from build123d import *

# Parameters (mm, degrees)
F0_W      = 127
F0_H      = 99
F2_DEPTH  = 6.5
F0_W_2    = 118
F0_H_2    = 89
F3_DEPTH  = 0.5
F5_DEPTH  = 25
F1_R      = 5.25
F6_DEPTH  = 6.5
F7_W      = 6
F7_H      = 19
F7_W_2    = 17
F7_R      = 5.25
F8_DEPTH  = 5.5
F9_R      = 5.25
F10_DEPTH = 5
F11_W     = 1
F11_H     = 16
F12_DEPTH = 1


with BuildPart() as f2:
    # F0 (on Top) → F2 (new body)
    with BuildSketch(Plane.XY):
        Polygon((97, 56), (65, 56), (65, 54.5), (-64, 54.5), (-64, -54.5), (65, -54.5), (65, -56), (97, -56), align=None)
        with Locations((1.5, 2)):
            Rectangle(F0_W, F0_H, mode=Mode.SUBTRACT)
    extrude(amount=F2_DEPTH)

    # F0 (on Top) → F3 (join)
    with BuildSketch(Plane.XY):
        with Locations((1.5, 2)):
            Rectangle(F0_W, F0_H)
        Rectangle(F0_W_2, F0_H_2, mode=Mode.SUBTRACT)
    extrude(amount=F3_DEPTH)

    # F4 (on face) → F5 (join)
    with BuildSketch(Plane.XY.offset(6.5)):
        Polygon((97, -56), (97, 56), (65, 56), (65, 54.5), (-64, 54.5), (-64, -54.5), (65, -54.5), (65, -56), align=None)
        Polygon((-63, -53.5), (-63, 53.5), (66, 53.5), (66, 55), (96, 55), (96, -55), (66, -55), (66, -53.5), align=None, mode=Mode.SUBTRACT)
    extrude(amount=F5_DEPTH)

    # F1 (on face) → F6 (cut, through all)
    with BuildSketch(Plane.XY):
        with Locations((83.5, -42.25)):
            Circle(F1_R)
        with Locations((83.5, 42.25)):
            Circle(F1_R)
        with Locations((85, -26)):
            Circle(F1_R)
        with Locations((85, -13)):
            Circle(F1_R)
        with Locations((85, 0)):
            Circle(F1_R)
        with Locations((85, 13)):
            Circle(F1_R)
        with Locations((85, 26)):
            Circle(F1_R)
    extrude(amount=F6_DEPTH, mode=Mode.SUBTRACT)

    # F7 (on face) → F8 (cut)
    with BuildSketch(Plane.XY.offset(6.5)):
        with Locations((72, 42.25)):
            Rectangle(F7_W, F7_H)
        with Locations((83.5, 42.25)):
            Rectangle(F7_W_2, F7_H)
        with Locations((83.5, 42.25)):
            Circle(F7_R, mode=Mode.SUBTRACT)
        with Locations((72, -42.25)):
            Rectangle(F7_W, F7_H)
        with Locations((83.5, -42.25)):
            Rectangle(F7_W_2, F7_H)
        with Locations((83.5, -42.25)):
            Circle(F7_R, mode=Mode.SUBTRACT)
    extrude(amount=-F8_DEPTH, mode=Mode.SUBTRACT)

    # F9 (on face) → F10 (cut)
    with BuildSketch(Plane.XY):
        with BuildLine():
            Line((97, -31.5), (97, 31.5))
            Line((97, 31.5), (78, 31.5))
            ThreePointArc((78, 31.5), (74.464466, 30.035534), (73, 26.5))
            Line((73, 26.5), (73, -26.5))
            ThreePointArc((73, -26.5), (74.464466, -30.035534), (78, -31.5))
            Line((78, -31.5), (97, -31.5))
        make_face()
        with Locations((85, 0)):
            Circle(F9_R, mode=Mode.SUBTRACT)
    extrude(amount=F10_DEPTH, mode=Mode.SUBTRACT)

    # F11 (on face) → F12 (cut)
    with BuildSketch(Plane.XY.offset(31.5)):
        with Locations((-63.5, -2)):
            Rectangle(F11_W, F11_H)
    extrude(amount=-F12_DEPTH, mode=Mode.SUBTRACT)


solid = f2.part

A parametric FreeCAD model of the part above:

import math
import FreeCAD as App
import Part
import Sketcher

doc = App.newDocument("Part")
body = doc.addObject("PartDesign::Body", "Body")

# Sketch on XY plane
sketch1 = doc.addObject("Sketcher::SketchObject", "Sketch")
body.addObject(sketch1)
sketch1.AttachmentSupport = (doc.XY_Plane, [""])
sketch1.MapMode = "FlatFace"
sketch1.addGeometry([
    Part.LineSegment(App.Vector(97, 56, 0), App.Vector(65, 56, 0)),  # 0
    Part.LineSegment(App.Vector(65, 56, 0), App.Vector(65, 54.5, 0)),  # 1
    Part.LineSegment(App.Vector(65, 54.5, 0), App.Vector(-64, 54.5, 0)),  # 2
    Part.LineSegment(App.Vector(-64, 54.5, 0), App.Vector(-64, -54.5, 0)),  # 3
    Part.LineSegment(App.Vector(-64, -54.5, 0), App.Vector(65, -54.5, 0)),  # 4
    Part.LineSegment(App.Vector(65, -54.5, 0), App.Vector(65, -56, 0)),  # 5
    Part.LineSegment(App.Vector(65, -56, 0), App.Vector(97, -56, 0)),  # 6
    Part.LineSegment(App.Vector(97, -56, 0), App.Vector(97, 56, 0)),  # 7
    Part.LineSegment(App.Vector(65, -47.5, 0), App.Vector(-62, -47.5, 0)),  # 8
    Part.LineSegment(App.Vector(-62, -47.5, 0), App.Vector(-62, 51.5, 0)),  # 9
    Part.LineSegment(App.Vector(-62, 51.5, 0), App.Vector(65, 51.5, 0)),  # 10
    Part.LineSegment(App.Vector(65, 51.5, 0), App.Vector(65, -47.5, 0)),  # 11
], False)
sketch1.addConstraint([
    Sketcher.Constraint("Coincident", 0, 2, 1, 1),
    Sketcher.Constraint("Coincident", 1, 2, 2, 1),
    Sketcher.Constraint("Coincident", 2, 2, 3, 1),
    Sketcher.Constraint("Coincident", 3, 2, 4, 1),
    Sketcher.Constraint("Coincident", 4, 2, 5, 1),
    Sketcher.Constraint("Coincident", 5, 2, 6, 1),
    Sketcher.Constraint("Coincident", 6, 2, 7, 1),
    Sketcher.Constraint("Coincident", 7, 2, 0, 1),
    Sketcher.Constraint("Coincident", 8, 2, 9, 1),
    Sketcher.Constraint("Coincident", 9, 2, 10, 1),
    Sketcher.Constraint("Coincident", 10, 2, 11, 1),
    Sketcher.Constraint("Coincident", 11, 2, 8, 1),
    Sketcher.Constraint("Horizontal", 0),
    Sketcher.Constraint("Vertical", 1),
    Sketcher.Constraint("Horizontal", 2),
    Sketcher.Constraint("Vertical", 3),
    Sketcher.Constraint("Horizontal", 4),
    Sketcher.Constraint("Vertical", 5),
    Sketcher.Constraint("Horizontal", 6),
    Sketcher.Constraint("Vertical", 7),
    Sketcher.Constraint("Horizontal", 8),
    Sketcher.Constraint("Vertical", 9),
    Sketcher.Constraint("Horizontal", 10),
    Sketcher.Constraint("Vertical", 11),
    Sketcher.Constraint("Symmetric", 1, 2, 4, 2, -1),
    Sketcher.Constraint("Vertical", 5, 2, 10, 2),
    Sketcher.Constraint("Equal", 1, 5),
    Sketcher.Constraint("DistanceX", 0, 2, 0, 1, 32.0),
    Sketcher.Constraint("DistanceX", 2, 2, 2, 1, 129.0),
    Sketcher.Constraint("DistanceX", 8, 2, 8, 1, 127.0),
    Sketcher.Constraint("DistanceY", 3, 2, 3, 1, 109.0),
    Sketcher.Constraint("DistanceY", 7, 1, 7, 2, 112.0),
    Sketcher.Constraint("DistanceY", 9, 1, 9, 2, 99.0),
    Sketcher.Constraint("DistanceX", -1, 1, 0, 2, 65.0),
    Sketcher.Constraint("DistanceY", 3, 2, 8, 2, 7.0),
])
pad1 = doc.addObject("PartDesign::Pad", "Pad")
body.addObject(pad1)
pad1.Profile = sketch1
pad1.Length = 6.5

# Sketch on XY plane
sketch2 = doc.addObject("Sketcher::SketchObject", "Sketch001")
body.addObject(sketch2)
sketch2.AttachmentSupport = (doc.XY_Plane, [""])
sketch2.MapMode = "FlatFace"
sketch2.addGeometry([
    Part.LineSegment(App.Vector(-62, 52, 0), App.Vector(-62, -48, 0)),  # 0
    Part.LineSegment(App.Vector(-62, -48, 0), App.Vector(65, -48, 0)),  # 1
    Part.LineSegment(App.Vector(65, -48, 0), App.Vector(65, 52, 0)),  # 2
    Part.LineSegment(App.Vector(65, 52, 0), App.Vector(-62, 52, 0)),  # 3
    Part.LineSegment(App.Vector(59, -44, 0), App.Vector(-59, -44, 0)),  # 4
    Part.LineSegment(App.Vector(-59, -44, 0), App.Vector(-59, 44, 0)),  # 5
    Part.LineSegment(App.Vector(-59, 44, 0), App.Vector(59, 44, 0)),  # 6
    Part.LineSegment(App.Vector(59, 44, 0), App.Vector(59, -44, 0)),  # 7
], False)
sketch2.addConstraint([
    Sketcher.Constraint("Coincident", 0, 2, 1, 1),
    Sketcher.Constraint("Coincident", 1, 2, 2, 1),
    Sketcher.Constraint("Coincident", 2, 2, 3, 1),
    Sketcher.Constraint("Coincident", 3, 2, 0, 1),
    Sketcher.Constraint("Coincident", 4, 2, 5, 1),
    Sketcher.Constraint("Coincident", 5, 2, 6, 1),
    Sketcher.Constraint("Coincident", 6, 2, 7, 1),
    Sketcher.Constraint("Coincident", 7, 2, 4, 1),
    Sketcher.Constraint("Vertical", 0),
    Sketcher.Constraint("Horizontal", 1),
    Sketcher.Constraint("Vertical", 2),
    Sketcher.Constraint("Horizontal", 3),
    Sketcher.Constraint("Horizontal", 4),
    Sketcher.Constraint("Vertical", 5),
    Sketcher.Constraint("Horizontal", 6),
    Sketcher.Constraint("Vertical", 7),
    Sketcher.Constraint("Symmetric", 4, 2, 6, 2, -1, 1),
    Sketcher.Constraint("DistanceX", 1, 1, 1, 2, 127.0),
    Sketcher.Constraint("DistanceX", 4, 2, 4, 1, 118.0),
    Sketcher.Constraint("DistanceY", 0, 2, 0, 1, 99.0),
    Sketcher.Constraint("DistanceY", 5, 1, 5, 2, 89.0),
    Sketcher.Constraint("DistanceX", 0, 2, -1, 1, 62.0),
    Sketcher.Constraint("DistanceY", 0, 2, 4, 2, 3.0),
])
pad2 = doc.addObject("PartDesign::Pad", "Pad001")
body.addObject(pad2)
pad2.Profile = sketch2
pad2.Length = 0.5

# Sketch on XY plane
sketch3 = doc.addObject("Sketcher::SketchObject", "Sketch002")
body.addObject(sketch3)
sketch3.AttachmentSupport = (doc.XY_Plane, [""])
sketch3.MapMode = "FlatFace"
sketch3.AttachmentOffset = App.Placement(App.Vector(0, 0, 6.5), App.Rotation())
sketch3.addGeometry([
    Part.LineSegment(App.Vector(97, -56, 0), App.Vector(97, 56, 0)),  # 0
    Part.LineSegment(App.Vector(97, 56, 0), App.Vector(65, 56, 0)),  # 1
    Part.LineSegment(App.Vector(65, 56, 0), App.Vector(65, 54.5, 0)),  # 2
    Part.LineSegment(App.Vector(65, 54.5, 0), App.Vector(-64, 54.5, 0)),  # 3
    Part.LineSegment(App.Vector(-64, 54.5, 0), App.Vector(-64, -54.5, 0)),  # 4
    Part.LineSegment(App.Vector(-64, -54.5, 0), App.Vector(65, -54.5, 0)),  # 5
    Part.LineSegment(App.Vector(65, -54.5, 0), App.Vector(65, -56, 0)),  # 6
    Part.LineSegment(App.Vector(65, -56, 0), App.Vector(97, -56, 0)),  # 7
    Part.LineSegment(App.Vector(66, -53.5, 0), App.Vector(-63, -53.5, 0)),  # 8
    Part.LineSegment(App.Vector(-63, -53.5, 0), App.Vector(-63, 53.5, 0)),  # 9
    Part.LineSegment(App.Vector(-63, 53.5, 0), App.Vector(66, 53.5, 0)),  # 10
    Part.LineSegment(App.Vector(66, 53.5, 0), App.Vector(66, 55, 0)),  # 11
    Part.LineSegment(App.Vector(66, 55, 0), App.Vector(96, 55, 0)),  # 12
    Part.LineSegment(App.Vector(96, 55, 0), App.Vector(96, -55, 0)),  # 13
    Part.LineSegment(App.Vector(96, -55, 0), App.Vector(66, -55, 0)),  # 14
    Part.LineSegment(App.Vector(66, -55, 0), App.Vector(66, -53.5, 0)),  # 15
], False)
sketch3.addConstraint([
    Sketcher.Constraint("Coincident", 0, 2, 1, 1),
    Sketcher.Constraint("Coincident", 1, 2, 2, 1),
    Sketcher.Constraint("Coincident", 2, 2, 3, 1),
    Sketcher.Constraint("Coincident", 3, 2, 4, 1),
    Sketcher.Constraint("Coincident", 4, 2, 5, 1),
    Sketcher.Constraint("Coincident", 5, 2, 6, 1),
    Sketcher.Constraint("Coincident", 6, 2, 7, 1),
    Sketcher.Constraint("Coincident", 7, 2, 0, 1),
    Sketcher.Constraint("Coincident", 8, 2, 9, 1),
    Sketcher.Constraint("Coincident", 9, 2, 10, 1),
    Sketcher.Constraint("Coincident", 10, 2, 11, 1),
    Sketcher.Constraint("Coincident", 11, 2, 12, 1),
    Sketcher.Constraint("Coincident", 12, 2, 13, 1),
    Sketcher.Constraint("Coincident", 13, 2, 14, 1),
    Sketcher.Constraint("Coincident", 14, 2, 15, 1),
    Sketcher.Constraint("Coincident", 15, 2, 8, 1),
    Sketcher.Constraint("Vertical", 0),
    Sketcher.Constraint("Horizontal", 1),
    Sketcher.Constraint("Vertical", 2),
    Sketcher.Constraint("Horizontal", 3),
    Sketcher.Constraint("Vertical", 4),
    Sketcher.Constraint("Horizontal", 5),
    Sketcher.Constraint("Vertical", 6),
    Sketcher.Constraint("Horizontal", 7),
    Sketcher.Constraint("Horizontal", 8),
    Sketcher.Constraint("Vertical", 9),
    Sketcher.Constraint("Horizontal", 10),
    Sketcher.Constraint("Vertical", 11),
    Sketcher.Constraint("Horizontal", 12),
    Sketcher.Constraint("Vertical", 13),
    Sketcher.Constraint("Horizontal", 14),
    Sketcher.Constraint("Vertical", 15),
    Sketcher.Constraint("Symmetric", 2, 2, 5, 2, -1),
    Sketcher.Constraint("Symmetric", 11, 2, 14, 2, -1),
    Sketcher.Constraint("Equal", 5, 8),
    Sketcher.Constraint("Equal", 2, 6),
    Sketcher.Constraint("Equal", 6, 11),
    Sketcher.Constraint("Equal", 11, 15),
    Sketcher.Constraint("DistanceX", 1, 2, 1, 1, 32.0),
    Sketcher.Constraint("DistanceX", 3, 2, 3, 1, 129.0),
    Sketcher.Constraint("DistanceX", 12, 1, 12, 2, 30.0),
    Sketcher.Constraint("DistanceY", 0, 1, 0, 2, 112.0),
    Sketcher.Constraint("DistanceY", 4, 2, 4, 1, 109.0),
    Sketcher.Constraint("DistanceY", 9, 1, 9, 2, 107.0),
    Sketcher.Constraint("DistanceX", -1, 1, 0, 2, 97.0),
    Sketcher.Constraint("DistanceX", 8, 2, -1, 1, 63.0),
])
pad3 = doc.addObject("PartDesign::Pad", "Pad002")
body.addObject(pad3)
pad3.Profile = sketch3
pad3.Length = 25

# Sketch on XY plane
sketch4 = doc.addObject("Sketcher::SketchObject", "Sketch003")
body.addObject(sketch4)
sketch4.AttachmentSupport = (doc.XY_Plane, [""])
sketch4.MapMode = "FlatFace"
sketch4.addGeometry([
    Part.Circle(App.Vector(84, -42, 0), App.Vector(0, 0, 1), 5),  # 0
    Part.Circle(App.Vector(84, 42, 0), App.Vector(0, 0, 1), 5),  # 1
    Part.Circle(App.Vector(85, -26, 0), App.Vector(0, 0, 1), 5),  # 2
    Part.Circle(App.Vector(85, -13, 0), App.Vector(0, 0, 1), 5),  # 3
    Part.Circle(App.Vector(85, 0, 0), App.Vector(0, 0, 1), 5),  # 4
    Part.Circle(App.Vector(85, 13, 0), App.Vector(0, 0, 1), 5),  # 5
    Part.Circle(App.Vector(85, 26, 0), App.Vector(0, 0, 1), 5),  # 6
], False)
sketch4.addConstraint([
    Sketcher.Constraint("Equal", 0, 1),
    Sketcher.Constraint("Equal", 1, 2),
    Sketcher.Constraint("Equal", 2, 3),
    Sketcher.Constraint("Equal", 3, 4),
    Sketcher.Constraint("Equal", 4, 5),
    Sketcher.Constraint("Equal", 5, 6),
    Sketcher.Constraint("Symmetric", 0, 3, 1, 3, -1),
    Sketcher.Constraint("Symmetric", 3, 3, 5, 3, -1),
    Sketcher.Constraint("Symmetric", 2, 3, 6, 3, -1),
    Sketcher.Constraint("PointOnObject", 4, 3, -1),
    Sketcher.Constraint("Vertical", 2, 3, 3, 3),
    Sketcher.Constraint("Vertical", 3, 3, 4, 3),
    Sketcher.Constraint("Diameter", 0, 10.5),
    Sketcher.Constraint("DistanceX", -1, 1, 2, 3, 85.0),
    Sketcher.Constraint("DistanceY", 2, 3, -1, 1, 26.0),
    Sketcher.Constraint("DistanceY", 3, 3, -1, 1, 13.0),
    Sketcher.Constraint("DistanceX", -1, 1, 0, 3, 83.5),
    Sketcher.Constraint("DistanceY", 0, 3, 1, 3, 84.5),
])
pocket1 = doc.addObject("PartDesign::Pocket", "Pocket")
body.addObject(pocket1)
pocket1.Profile = sketch4
pocket1.Type = "ThroughAll"
pocket1.Reversed = True

# Sketch on XY plane
sketch5 = doc.addObject("Sketcher::SketchObject", "Sketch004")
body.addObject(sketch5)
sketch5.AttachmentSupport = (doc.XY_Plane, [""])
sketch5.MapMode = "FlatFace"
sketch5.AttachmentOffset = App.Placement(App.Vector(0, 0, 6.5), App.Rotation())
sketch5.addGeometry([
    Part.LineSegment(App.Vector(69, 52, 0), App.Vector(69, 33, 0)),  # 0
    Part.LineSegment(App.Vector(69, 33, 0), App.Vector(92, 33, 0)),  # 1
    Part.LineSegment(App.Vector(92, 33, 0), App.Vector(92, 52, 0)),  # 2
    Part.LineSegment(App.Vector(92, 52, 0), App.Vector(69, 52, 0)),  # 3
    Part.Circle(App.Vector(84, 42, 0), App.Vector(0, 0, 1), 5),  # 4
    Part.LineSegment(App.Vector(69, -33, 0), App.Vector(69, -52, 0)),  # 5
    Part.LineSegment(App.Vector(69, -52, 0), App.Vector(92, -52, 0)),  # 6
    Part.LineSegment(App.Vector(92, -52, 0), App.Vector(92, -33, 0)),  # 7
    Part.LineSegment(App.Vector(92, -33, 0), App.Vector(69, -33, 0)),  # 8
    Part.Circle(App.Vector(84, -42, 0), App.Vector(0, 0, 1), 5),  # 9
], False)
sketch5.addConstraint([
    Sketcher.Constraint("Coincident", 0, 2, 1, 1),
    Sketcher.Constraint("Coincident", 1, 2, 2, 1),
    Sketcher.Constraint("Coincident", 2, 2, 3, 1),
    Sketcher.Constraint("Coincident", 3, 2, 0, 1),
    Sketcher.Constraint("Coincident", 5, 2, 6, 1),
    Sketcher.Constraint("Coincident", 6, 2, 7, 1),
    Sketcher.Constraint("Coincident", 7, 2, 8, 1),
    Sketcher.Constraint("Coincident", 8, 2, 5, 1),
    Sketcher.Constraint("Vertical", 0),
    Sketcher.Constraint("Horizontal", 1),
    Sketcher.Constraint("Vertical", 2),
    Sketcher.Constraint("Horizontal", 3),
    Sketcher.Constraint("Vertical", 5),
    Sketcher.Constraint("Horizontal", 6),
    Sketcher.Constraint("Vertical", 7),
    Sketcher.Constraint("Horizontal", 8),
    Sketcher.Constraint("Equal", 4, 9),
    Sketcher.Constraint("Symmetric", 4, 3, 9, 3, -1),
    Sketcher.Constraint("Symmetric", 3, 2, 5, 2, -1),
    Sketcher.Constraint("Symmetric", 1, 2, 7, 2, -1),
    Sketcher.Constraint("Diameter", 4, 10.5),
    Sketcher.Constraint("DistanceX", 1, 1, 1, 2, 23.0),
    Sketcher.Constraint("DistanceY", 0, 2, 0, 1, 19.0),
    Sketcher.Constraint("DistanceX", -1, 1, 0, 2, 69.0),
    Sketcher.Constraint("DistanceY", 9, 3, 0, 2, 75.0),
    Sketcher.Constraint("DistanceX", -1, 1, 4, 3, 83.5),
    Sketcher.Constraint("DistanceY", 9, 3, 4, 3, 84.5),
])
pocket2 = doc.addObject("PartDesign::Pocket", "Pocket001")
body.addObject(pocket2)
pocket2.Profile = sketch5
pocket2.Length = 5.5

# Sketch on XY plane
sketch6 = doc.addObject("Sketcher::SketchObject", "Sketch005")
body.addObject(sketch6)
sketch6.AttachmentSupport = (doc.XY_Plane, [""])
sketch6.MapMode = "FlatFace"
sketch6.addGeometry([
    Part.LineSegment(App.Vector(97, -31.5, 0), App.Vector(97, 31.5, 0)),  # 0
    Part.LineSegment(App.Vector(97, 31.5, 0), App.Vector(78, 31.5, 0)),  # 1
    Part.ArcOfCircle(Part.Circle(App.Vector(78, 26.5, 0), App.Vector(0, 0, 1), 5), math.radians(90), math.radians(180)),  # 2
    Part.LineSegment(App.Vector(73, 26.5, 0), App.Vector(73, -26.5, 0)),  # 3
    Part.ArcOfCircle(Part.Circle(App.Vector(78, -26.5, 0), App.Vector(0, 0, 1), 5), math.radians(180), math.radians(270)),  # 4
    Part.LineSegment(App.Vector(78, -31.5, 0), App.Vector(97, -31.5, 0)),  # 5
    Part.Circle(App.Vector(85, 0, 0), App.Vector(0, 0, 1), 5.2),  # 6
], False)
sketch6.addConstraint([
    Sketcher.Constraint("Coincident", 0, 2, 1, 1),
    Sketcher.Constraint("Tangent", 1, 2, 2, 1),
    Sketcher.Constraint("Tangent", 2, 2, 3, 1),
    Sketcher.Constraint("Tangent", 3, 2, 4, 1),
    Sketcher.Constraint("Tangent", 4, 2, 5, 1),
    Sketcher.Constraint("Coincident", 5, 2, 0, 1),
    Sketcher.Constraint("Vertical", 0),
    Sketcher.Constraint("Horizontal", 1),
    Sketcher.Constraint("Vertical", 3),
    Sketcher.Constraint("Horizontal", 5),
    Sketcher.Constraint("Equal", 2, 4),
    Sketcher.Constraint("PointOnObject", 6, 3, -1),
    Sketcher.Constraint("Radius", 2, 5.0),
    Sketcher.Constraint("Diameter", 6, 10.5),
    Sketcher.Constraint("DistanceX", 1, 2, 1, 1, 19.0),
    Sketcher.Constraint("DistanceY", 0, 1, 0, 2, 63.0),
    Sketcher.Constraint("DistanceX", -1, 1, 2, 3, 78.0),
    Sketcher.Constraint("DistanceX", -1, 1, 6, 3, 85.0),
    Sketcher.Constraint("DistanceY", -1, 1, 2, 3, 26.5),
])
pocket3 = doc.addObject("PartDesign::Pocket", "Pocket002")
body.addObject(pocket3)
pocket3.Profile = sketch6
pocket3.Length = 5
pocket3.Reversed = True

# Sketch on XY plane
sketch7 = doc.addObject("Sketcher::SketchObject", "Sketch006")
body.addObject(sketch7)
sketch7.AttachmentSupport = (doc.XY_Plane, [""])
sketch7.MapMode = "FlatFace"
sketch7.AttachmentOffset = App.Placement(App.Vector(0, 0, 31.5), App.Rotation())
sketch7.addGeometry([
    Part.LineSegment(App.Vector(-64, 6, 0), App.Vector(-64, -10, 0)),
    Part.LineSegment(App.Vector(-64, -10, 0), App.Vector(-63, -10, 0)),
    Part.LineSegment(App.Vector(-63, -10, 0), App.Vector(-63, 6, 0)),
    Part.LineSegment(App.Vector(-63, 6, 0), App.Vector(-64, 6, 0)),
], False)
sketch7.addConstraint([
    Sketcher.Constraint("Coincident", 0, 2, 1, 1),
    Sketcher.Constraint("Coincident", 1, 2, 2, 1),
    Sketcher.Constraint("Coincident", 2, 2, 3, 1),
    Sketcher.Constraint("Coincident", 3, 2, 0, 1),
    Sketcher.Constraint("Vertical", 0),
    Sketcher.Constraint("Horizontal", 1),
    Sketcher.Constraint("Vertical", 2),
    Sketcher.Constraint("Horizontal", 3),
    Sketcher.Constraint("DistanceX", 1, 1, 1, 2, 1.0),
    Sketcher.Constraint("DistanceY", 0, 2, 0, 1, 16.0),
    Sketcher.Constraint("DistanceX", 0, 2, -1, 1, 64.0),
    Sketcher.Constraint("DistanceY", 0, 2, -1, 1, 10.0),
])
pocket4 = doc.addObject("PartDesign::Pocket", "Pocket003")
body.addObject(pocket4)
pocket4.Profile = sketch7
pocket4.Length = 1

doc.recompute()
